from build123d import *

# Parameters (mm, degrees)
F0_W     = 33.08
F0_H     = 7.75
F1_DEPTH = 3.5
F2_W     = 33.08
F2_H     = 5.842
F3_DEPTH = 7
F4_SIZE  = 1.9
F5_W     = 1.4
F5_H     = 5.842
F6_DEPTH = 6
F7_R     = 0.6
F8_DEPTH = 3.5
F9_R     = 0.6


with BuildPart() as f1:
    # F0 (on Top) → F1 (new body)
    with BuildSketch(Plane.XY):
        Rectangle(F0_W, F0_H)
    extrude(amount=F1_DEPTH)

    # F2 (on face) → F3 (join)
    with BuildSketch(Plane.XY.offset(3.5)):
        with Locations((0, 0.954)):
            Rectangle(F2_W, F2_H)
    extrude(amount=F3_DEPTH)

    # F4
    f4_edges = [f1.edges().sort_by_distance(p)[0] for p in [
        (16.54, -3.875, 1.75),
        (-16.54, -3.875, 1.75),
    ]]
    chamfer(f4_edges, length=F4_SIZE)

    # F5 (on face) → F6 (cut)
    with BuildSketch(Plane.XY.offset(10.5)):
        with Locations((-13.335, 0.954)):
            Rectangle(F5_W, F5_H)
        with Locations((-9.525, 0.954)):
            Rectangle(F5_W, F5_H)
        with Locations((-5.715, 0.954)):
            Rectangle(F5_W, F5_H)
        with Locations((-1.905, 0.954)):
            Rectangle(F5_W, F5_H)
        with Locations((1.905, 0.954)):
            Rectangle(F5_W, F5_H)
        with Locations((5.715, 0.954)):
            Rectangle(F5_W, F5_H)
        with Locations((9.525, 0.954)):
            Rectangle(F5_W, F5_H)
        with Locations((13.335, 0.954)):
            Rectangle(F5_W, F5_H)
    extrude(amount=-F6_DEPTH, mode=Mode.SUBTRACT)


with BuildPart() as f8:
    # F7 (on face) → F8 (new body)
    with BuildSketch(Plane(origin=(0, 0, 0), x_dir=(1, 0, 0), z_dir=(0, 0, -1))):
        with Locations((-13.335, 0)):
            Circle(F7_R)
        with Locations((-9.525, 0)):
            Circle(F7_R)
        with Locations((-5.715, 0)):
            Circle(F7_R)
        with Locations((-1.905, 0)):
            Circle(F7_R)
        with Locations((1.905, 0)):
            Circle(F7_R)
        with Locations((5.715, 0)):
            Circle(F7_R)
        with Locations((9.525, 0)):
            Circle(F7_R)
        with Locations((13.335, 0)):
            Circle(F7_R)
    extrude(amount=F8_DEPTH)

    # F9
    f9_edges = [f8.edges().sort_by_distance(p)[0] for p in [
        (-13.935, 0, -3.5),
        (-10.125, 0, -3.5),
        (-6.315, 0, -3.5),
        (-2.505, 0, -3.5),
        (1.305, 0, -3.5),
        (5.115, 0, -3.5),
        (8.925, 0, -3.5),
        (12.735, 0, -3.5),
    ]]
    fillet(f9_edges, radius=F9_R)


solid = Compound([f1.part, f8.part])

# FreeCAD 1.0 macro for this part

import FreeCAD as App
import Part
import Sketcher

V = App.Vector
Q = App.Units.Quantity


def edges_at(feature, points):
    """Names of the edges that pass closest to the given points."""
    edges = feature.Shape.Edges
    near = lambda p: min(range(len(edges)), key=lambda i: edges[i].distToShape(Part.Vertex(*p))[0])
    return sorted({f"Edge{near(p) + 1}" for p in points})


def add_polygon(sketch, points):
    """Adds a closed chain of lines whose ends are joined by coincident constraints."""
    first, n = sketch.GeometryCount, len(points)
    for a, b in zip(points, points[1:] + points[:1]):
        sketch.addGeometry(Part.LineSegment(App.Vector(*a, 0), App.Vector(*b, 0)), False)
    for i in range(n):
        sketch.addConstraint(Sketcher.Constraint("Coincident", first + i, 2, first + (i + 1) % n, 1))

doc = App.newDocument("Part")
body = doc.addObject("PartDesign::Body", "Body")

sketch1 = body.newObject("Sketcher::SketchObject", "Sketch")
sketch1.AttachmentSupport = (doc.getObject("XY_Plane"), [""])
sketch1.MapMode = "FlatFace"
add_polygon(sketch1, [(-17, 4), (-17, -4), (17, -4), (17, 4)])
sketch1.addConstraint([
    Sketcher.Constraint("Vertical", 0),
    Sketcher.Constraint("Horizontal", 1),
    Sketcher.Constraint("Vertical", 2),
    Sketcher.Constraint("Horizontal", 3),
    Sketcher.Constraint("Symmetric", 0, 2, 2, 2, -1, 1),
    Sketcher.Constraint("DistanceX", 1, 1, 1, 2, Q("33.08 mm")),
    Sketcher.Constraint("DistanceY", 0, 2, 0, 1, Q("7.75 mm")),
])
pad1 = body.newObject("PartDesign::Pad", "Pad")
pad1.Profile = sketch1
pad1.Length = 3.5

sketch2 = body.newObject("Sketcher::SketchObject", "Sketch001")
sketch2.AttachmentSupport = (doc.getObject("XY_Plane"), [""])
sketch2.MapMode = "FlatFace"
sketch2.AttachmentOffset = App.Placement(V(0, 0, 3.5), App.Rotation())
add_polygon(sketch2, [(-17, 4), (-17, -2), (17, -2), (17, 4)])
sketch2.addConstraint([
    Sketcher.Constraint("Vertical", 0),
    Sketcher.Constraint("Horizontal", 1),
    Sketcher.Constraint("Vertical", 2),
    Sketcher.Constraint("Horizontal", 3),
    Sketcher.Constraint("DistanceX", 1, 1, 1, 2, Q("33.08 mm")),
    Sketcher.Constraint("DistanceY", 0, 2, 0, 1, Q("5.842 mm")),
    Sketcher.Constraint("DistanceX", 0, 2, -1, 1, Q("16.54 mm")),
    Sketcher.Constraint("DistanceY", 0, 2, -1, 1, Q("1.967 mm")),
])
pad2 = body.newObject("PartDesign::Pad", "Pad001")
pad2.Profile = sketch2
pad2.Length = 7
doc.recompute()

chamfer = body.newObject("PartDesign::Chamfer", "Chamfer")
chamfer.Base = (pad2, edges_at(pad2, [(16.54, -3.875, 1.75), (-16.54, -3.875, 1.75)]))
chamfer.Size = 1.9

sketch3 = body.newObject("Sketcher::SketchObject", "Sketch002")
sketch3.AttachmentSupport = (doc.getObject("XY_Plane"), [""])
sketch3.MapMode = "FlatFace"
sketch3.AttachmentOffset = App.Placement(V(0, 0, 10.5), App.Rotation())
add_polygon(sketch3, [(-14, 3.9), (-14, -2), (-12.6, -2), (-12.6, 3.9)])
add_polygon(sketch3, [(-10.2, 3.9), (-10.2, -2), (-8.8, -2), (-8.8, 3.9)])
add_polygon(sketch3, [(-6.4, 3.9), (-6.4, -2), (-5, -2), (-5, 3.9)])
add_polygon(sketch3, [(-2.6, 3.9), (-2.6, -2), (-1.2, -2), (-1.2, 3.9)])
add_polygon(sketch3, [(1.2, 3.9), (1.2, -2), (2.6, -2), (2.6, 3.9)])
add_polygon(sketch3, [(5, 3.9), (5, -2), (6.4, -2), (6.4, 3.9)])
add_polygon(sketch3, [(8.8, 3.9), (8.8, -2), (10.2, -2), (10.2, 3.9)])
add_polygon(sketch3, [(12.6, 3.9), (12.6, -2), (14, -2), (14, 3.9)])
sketch3.addConstraint([
    Sketcher.Constraint("Vertical", 0),
    Sketcher.Constraint("Horizontal", 1),
    Sketcher.Constraint("Vertical", 2),
    Sketcher.Constraint("Horizontal", 3),
    Sketcher.Constraint("Vertical", 4),
    Sketcher.Constraint("Horizontal", 5),
    Sketcher.Constraint("Vertical", 6),
    Sketcher.Constraint("Horizontal", 7),
    Sketcher.Constraint("Vertical", 8),
    Sketcher.Constraint("Horizontal", 9),
    Sketcher.Constraint("Vertical", 10),
    Sketcher.Constraint("Horizontal", 11),
    Sketcher.Constraint("Vertical", 12),
    Sketcher.Constraint("Horizontal", 13),
    Sketcher.Constraint("Vertical", 14),
    Sketcher.Constraint("Horizontal", 15),
    Sketcher.Constraint("Vertical", 16),
    Sketcher.Constraint("Horizontal", 17),
    Sketcher.Constraint("Vertical", 18),
    Sketcher.Constraint("Horizontal", 19),
    Sketcher.Constraint("Vertical", 20),
    Sketcher.Constraint("Horizontal", 21),
    Sketcher.Constraint("Vertical", 22),
    Sketcher.Constraint("Horizontal", 23),
    Sketcher.Constraint("Vertical", 24),
    Sketcher.Constraint("Horizontal", 25),
    Sketcher.Constraint("Vertical", 26),
    Sketcher.Constraint("Horizontal", 27),
    Sketcher.Constraint("Vertical", 28),
    Sketcher.Constraint("Horizontal", 29),
    Sketcher.Constraint("Vertical", 30),
    Sketcher.Constraint("Horizontal", 31),
    Sketcher.Constraint("Symmetric", 13, 2, 16, 2, -2),
    Sketcher.Constraint("Symmetric", 15, 2, 18, 2, -2),
    Sketcher.Constraint("Symmetric", 9, 2, 20, 2, -2),
    Sketcher.Constraint("Symmetric", 11, 2, 22, 2, -2),
    Sketcher.Constraint("Symmetric", 5, 2, 24, 2, -2),
    Sketcher.Constraint("Symmetric", 7, 2, 26, 2, -2),
    Sketcher.Constraint("Symmetric", 1, 2, 28, 2, -2),
    Sketcher.Constraint("Symmetric", 3, 2, 30, 2, -2),
    Sketcher.Constraint("Horizontal", 1, 2, 4, 2),
    Sketcher.Constraint("Horizontal", 3, 2, 6, 2),
    Sketcher.Constraint("Horizontal", 5, 2, 8, 2),
    Sketcher.Constraint("Horizontal", 7, 2, 10, 2),
    Sketcher.Constraint("Horizontal", 9, 2, 12, 2),
    Sketcher.Constraint("Horizontal", 11, 2, 14, 2),
    Sketcher.Constraint("Equal", 3, 5),
    Sketcher.Constraint("Equal", 7, 9),
    Sketcher.Constraint("Equal", 11, 13),
    Sketcher.Constraint("DistanceX", 1, 1, 1, 2, Q("1.4 mm")),
    Sketcher.Constraint("DistanceY", 0, 2, 0, 1, Q("5.842 mm")),
    Sketcher.Constraint("DistanceX", 1, 2, 4, 2, Q("2.41 mm")),
    Sketcher.Constraint("DistanceX", 5, 2, 8, 2, Q("2.41 mm")),
    Sketcher.Constraint("DistanceX", 9, 2, 12, 2, Q("2.41 mm")),
    Sketcher.Constraint("DistanceX", 13, 2, 16, 2, Q("2.41 mm")),
    Sketcher.Constraint("DistanceY", 0, 2, -1, 1, Q("1.967 mm")),
])
pocket1 = body.newObject("PartDesign::Pocket", "Pocket")
pocket1.Profile = sketch3
pocket1.Length = 6
body2 = doc.addObject("PartDesign::Body", "Body001")
body2.AllowCompound = True

sketch4 = body2.newObject("Sketcher::SketchObject", "Sketch003")
sketch4.AttachmentSupport = (doc.getObject("XY_Plane001"), [""])
sketch4.MapMode = "FlatFace"
sketch4.addGeometry([
    Part.Circle(V(-13.3, 0, 0), V(0, 0, 1), 0.6),
    Part.Circle(V(-9.5, 0, 0), V(0, 0, 1), 0.6),
    Part.Circle(V(-5.7, 0, 0), V(0, 0, 1), 0.6),
    Part.Circle(V(-1.9, 0, 0), V(0, 0, 1), 0.6),
    Part.Circle(V(1.9, 0, 0), V(0, 0, 1), 0.6),
    Part.Circle(V(5.7, 0, 0), V(0, 0, 1), 0.6),
    Part.Circle(V(9.5, 0, 0), V(0, 0, 1), 0.6),
    Part.Circle(V(13.3, 0, 0), V(0, 0, 1), 0.6),
], False)
sketch4.addConstraint([
    Sketcher.Constraint("Equal", 0, 1),
    Sketcher.Constraint("Equal", 1, 2),
    Sketcher.Constraint("Equal", 2, 3),
    Sketcher.Constraint("Equal", 3, 4),
    Sketcher.Constraint("Equal", 4, 5),
    Sketcher.Constraint("Equal", 5, 6),
    Sketcher.Constraint("Equal", 6, 7),
    Sketcher.Constraint("Symmetric", 3, 3, 4, 3, -1, 1),
    Sketcher.Constraint("Symmetric", 2, 3, 5, 3, -1, 1),
    Sketcher.Constraint("Symmetric", 1, 3, 6, 3, -1, 1),
    Sketcher.Constraint("Symmetric", 0, 3, 7, 3, -1, 1),
    Sketcher.Constraint("PointOnObject", 0, 3, -1),
    Sketcher.Constraint("PointOnObject", 1, 3, -1),
    Sketcher.Constraint("PointOnObject", 2, 3, -1),
    Sketcher.Constraint("PointOnObject", 3, 3, -1),
    Sketcher.Constraint("Diameter", 0, Q("1.2 mm")),
    Sketcher.Constraint("DistanceX", 0, 3, 1, 3, Q("3.81 mm")),
    Sketcher.Constraint("DistanceX", 1, 3, 2, 3, Q("3.81 mm")),
    Sketcher.Constraint("DistanceX", 2, 3, 3, 3, Q("3.81 mm")),
    Sketcher.Constraint("DistanceX", 3, 3, 4, 3, Q("3.81 mm")),
])
pad3 = body2.newObject("PartDesign::Pad", "Pad002")
pad3.Profile = sketch4
pad3.Length = 3.5
pad3.Reversed = True
doc.recompute()

fillet = body2.newObject("PartDesign::Fillet", "Fillet")
fillet.Base = (pad3, edges_at(pad3, [
    (-13.935, 0, -3.5),
    (-10.125, 0, -3.5),
    (-6.315, 0, -3.5),
    (-2.505, 0, -3.5),
    (1.305, 0, -3.5),
    (5.115, 0, -3.5),
    (8.925, 0, -3.5),
    (12.735, 0, -3.5),
]))
fillet.Radius = 0.6

doc.recompute()
